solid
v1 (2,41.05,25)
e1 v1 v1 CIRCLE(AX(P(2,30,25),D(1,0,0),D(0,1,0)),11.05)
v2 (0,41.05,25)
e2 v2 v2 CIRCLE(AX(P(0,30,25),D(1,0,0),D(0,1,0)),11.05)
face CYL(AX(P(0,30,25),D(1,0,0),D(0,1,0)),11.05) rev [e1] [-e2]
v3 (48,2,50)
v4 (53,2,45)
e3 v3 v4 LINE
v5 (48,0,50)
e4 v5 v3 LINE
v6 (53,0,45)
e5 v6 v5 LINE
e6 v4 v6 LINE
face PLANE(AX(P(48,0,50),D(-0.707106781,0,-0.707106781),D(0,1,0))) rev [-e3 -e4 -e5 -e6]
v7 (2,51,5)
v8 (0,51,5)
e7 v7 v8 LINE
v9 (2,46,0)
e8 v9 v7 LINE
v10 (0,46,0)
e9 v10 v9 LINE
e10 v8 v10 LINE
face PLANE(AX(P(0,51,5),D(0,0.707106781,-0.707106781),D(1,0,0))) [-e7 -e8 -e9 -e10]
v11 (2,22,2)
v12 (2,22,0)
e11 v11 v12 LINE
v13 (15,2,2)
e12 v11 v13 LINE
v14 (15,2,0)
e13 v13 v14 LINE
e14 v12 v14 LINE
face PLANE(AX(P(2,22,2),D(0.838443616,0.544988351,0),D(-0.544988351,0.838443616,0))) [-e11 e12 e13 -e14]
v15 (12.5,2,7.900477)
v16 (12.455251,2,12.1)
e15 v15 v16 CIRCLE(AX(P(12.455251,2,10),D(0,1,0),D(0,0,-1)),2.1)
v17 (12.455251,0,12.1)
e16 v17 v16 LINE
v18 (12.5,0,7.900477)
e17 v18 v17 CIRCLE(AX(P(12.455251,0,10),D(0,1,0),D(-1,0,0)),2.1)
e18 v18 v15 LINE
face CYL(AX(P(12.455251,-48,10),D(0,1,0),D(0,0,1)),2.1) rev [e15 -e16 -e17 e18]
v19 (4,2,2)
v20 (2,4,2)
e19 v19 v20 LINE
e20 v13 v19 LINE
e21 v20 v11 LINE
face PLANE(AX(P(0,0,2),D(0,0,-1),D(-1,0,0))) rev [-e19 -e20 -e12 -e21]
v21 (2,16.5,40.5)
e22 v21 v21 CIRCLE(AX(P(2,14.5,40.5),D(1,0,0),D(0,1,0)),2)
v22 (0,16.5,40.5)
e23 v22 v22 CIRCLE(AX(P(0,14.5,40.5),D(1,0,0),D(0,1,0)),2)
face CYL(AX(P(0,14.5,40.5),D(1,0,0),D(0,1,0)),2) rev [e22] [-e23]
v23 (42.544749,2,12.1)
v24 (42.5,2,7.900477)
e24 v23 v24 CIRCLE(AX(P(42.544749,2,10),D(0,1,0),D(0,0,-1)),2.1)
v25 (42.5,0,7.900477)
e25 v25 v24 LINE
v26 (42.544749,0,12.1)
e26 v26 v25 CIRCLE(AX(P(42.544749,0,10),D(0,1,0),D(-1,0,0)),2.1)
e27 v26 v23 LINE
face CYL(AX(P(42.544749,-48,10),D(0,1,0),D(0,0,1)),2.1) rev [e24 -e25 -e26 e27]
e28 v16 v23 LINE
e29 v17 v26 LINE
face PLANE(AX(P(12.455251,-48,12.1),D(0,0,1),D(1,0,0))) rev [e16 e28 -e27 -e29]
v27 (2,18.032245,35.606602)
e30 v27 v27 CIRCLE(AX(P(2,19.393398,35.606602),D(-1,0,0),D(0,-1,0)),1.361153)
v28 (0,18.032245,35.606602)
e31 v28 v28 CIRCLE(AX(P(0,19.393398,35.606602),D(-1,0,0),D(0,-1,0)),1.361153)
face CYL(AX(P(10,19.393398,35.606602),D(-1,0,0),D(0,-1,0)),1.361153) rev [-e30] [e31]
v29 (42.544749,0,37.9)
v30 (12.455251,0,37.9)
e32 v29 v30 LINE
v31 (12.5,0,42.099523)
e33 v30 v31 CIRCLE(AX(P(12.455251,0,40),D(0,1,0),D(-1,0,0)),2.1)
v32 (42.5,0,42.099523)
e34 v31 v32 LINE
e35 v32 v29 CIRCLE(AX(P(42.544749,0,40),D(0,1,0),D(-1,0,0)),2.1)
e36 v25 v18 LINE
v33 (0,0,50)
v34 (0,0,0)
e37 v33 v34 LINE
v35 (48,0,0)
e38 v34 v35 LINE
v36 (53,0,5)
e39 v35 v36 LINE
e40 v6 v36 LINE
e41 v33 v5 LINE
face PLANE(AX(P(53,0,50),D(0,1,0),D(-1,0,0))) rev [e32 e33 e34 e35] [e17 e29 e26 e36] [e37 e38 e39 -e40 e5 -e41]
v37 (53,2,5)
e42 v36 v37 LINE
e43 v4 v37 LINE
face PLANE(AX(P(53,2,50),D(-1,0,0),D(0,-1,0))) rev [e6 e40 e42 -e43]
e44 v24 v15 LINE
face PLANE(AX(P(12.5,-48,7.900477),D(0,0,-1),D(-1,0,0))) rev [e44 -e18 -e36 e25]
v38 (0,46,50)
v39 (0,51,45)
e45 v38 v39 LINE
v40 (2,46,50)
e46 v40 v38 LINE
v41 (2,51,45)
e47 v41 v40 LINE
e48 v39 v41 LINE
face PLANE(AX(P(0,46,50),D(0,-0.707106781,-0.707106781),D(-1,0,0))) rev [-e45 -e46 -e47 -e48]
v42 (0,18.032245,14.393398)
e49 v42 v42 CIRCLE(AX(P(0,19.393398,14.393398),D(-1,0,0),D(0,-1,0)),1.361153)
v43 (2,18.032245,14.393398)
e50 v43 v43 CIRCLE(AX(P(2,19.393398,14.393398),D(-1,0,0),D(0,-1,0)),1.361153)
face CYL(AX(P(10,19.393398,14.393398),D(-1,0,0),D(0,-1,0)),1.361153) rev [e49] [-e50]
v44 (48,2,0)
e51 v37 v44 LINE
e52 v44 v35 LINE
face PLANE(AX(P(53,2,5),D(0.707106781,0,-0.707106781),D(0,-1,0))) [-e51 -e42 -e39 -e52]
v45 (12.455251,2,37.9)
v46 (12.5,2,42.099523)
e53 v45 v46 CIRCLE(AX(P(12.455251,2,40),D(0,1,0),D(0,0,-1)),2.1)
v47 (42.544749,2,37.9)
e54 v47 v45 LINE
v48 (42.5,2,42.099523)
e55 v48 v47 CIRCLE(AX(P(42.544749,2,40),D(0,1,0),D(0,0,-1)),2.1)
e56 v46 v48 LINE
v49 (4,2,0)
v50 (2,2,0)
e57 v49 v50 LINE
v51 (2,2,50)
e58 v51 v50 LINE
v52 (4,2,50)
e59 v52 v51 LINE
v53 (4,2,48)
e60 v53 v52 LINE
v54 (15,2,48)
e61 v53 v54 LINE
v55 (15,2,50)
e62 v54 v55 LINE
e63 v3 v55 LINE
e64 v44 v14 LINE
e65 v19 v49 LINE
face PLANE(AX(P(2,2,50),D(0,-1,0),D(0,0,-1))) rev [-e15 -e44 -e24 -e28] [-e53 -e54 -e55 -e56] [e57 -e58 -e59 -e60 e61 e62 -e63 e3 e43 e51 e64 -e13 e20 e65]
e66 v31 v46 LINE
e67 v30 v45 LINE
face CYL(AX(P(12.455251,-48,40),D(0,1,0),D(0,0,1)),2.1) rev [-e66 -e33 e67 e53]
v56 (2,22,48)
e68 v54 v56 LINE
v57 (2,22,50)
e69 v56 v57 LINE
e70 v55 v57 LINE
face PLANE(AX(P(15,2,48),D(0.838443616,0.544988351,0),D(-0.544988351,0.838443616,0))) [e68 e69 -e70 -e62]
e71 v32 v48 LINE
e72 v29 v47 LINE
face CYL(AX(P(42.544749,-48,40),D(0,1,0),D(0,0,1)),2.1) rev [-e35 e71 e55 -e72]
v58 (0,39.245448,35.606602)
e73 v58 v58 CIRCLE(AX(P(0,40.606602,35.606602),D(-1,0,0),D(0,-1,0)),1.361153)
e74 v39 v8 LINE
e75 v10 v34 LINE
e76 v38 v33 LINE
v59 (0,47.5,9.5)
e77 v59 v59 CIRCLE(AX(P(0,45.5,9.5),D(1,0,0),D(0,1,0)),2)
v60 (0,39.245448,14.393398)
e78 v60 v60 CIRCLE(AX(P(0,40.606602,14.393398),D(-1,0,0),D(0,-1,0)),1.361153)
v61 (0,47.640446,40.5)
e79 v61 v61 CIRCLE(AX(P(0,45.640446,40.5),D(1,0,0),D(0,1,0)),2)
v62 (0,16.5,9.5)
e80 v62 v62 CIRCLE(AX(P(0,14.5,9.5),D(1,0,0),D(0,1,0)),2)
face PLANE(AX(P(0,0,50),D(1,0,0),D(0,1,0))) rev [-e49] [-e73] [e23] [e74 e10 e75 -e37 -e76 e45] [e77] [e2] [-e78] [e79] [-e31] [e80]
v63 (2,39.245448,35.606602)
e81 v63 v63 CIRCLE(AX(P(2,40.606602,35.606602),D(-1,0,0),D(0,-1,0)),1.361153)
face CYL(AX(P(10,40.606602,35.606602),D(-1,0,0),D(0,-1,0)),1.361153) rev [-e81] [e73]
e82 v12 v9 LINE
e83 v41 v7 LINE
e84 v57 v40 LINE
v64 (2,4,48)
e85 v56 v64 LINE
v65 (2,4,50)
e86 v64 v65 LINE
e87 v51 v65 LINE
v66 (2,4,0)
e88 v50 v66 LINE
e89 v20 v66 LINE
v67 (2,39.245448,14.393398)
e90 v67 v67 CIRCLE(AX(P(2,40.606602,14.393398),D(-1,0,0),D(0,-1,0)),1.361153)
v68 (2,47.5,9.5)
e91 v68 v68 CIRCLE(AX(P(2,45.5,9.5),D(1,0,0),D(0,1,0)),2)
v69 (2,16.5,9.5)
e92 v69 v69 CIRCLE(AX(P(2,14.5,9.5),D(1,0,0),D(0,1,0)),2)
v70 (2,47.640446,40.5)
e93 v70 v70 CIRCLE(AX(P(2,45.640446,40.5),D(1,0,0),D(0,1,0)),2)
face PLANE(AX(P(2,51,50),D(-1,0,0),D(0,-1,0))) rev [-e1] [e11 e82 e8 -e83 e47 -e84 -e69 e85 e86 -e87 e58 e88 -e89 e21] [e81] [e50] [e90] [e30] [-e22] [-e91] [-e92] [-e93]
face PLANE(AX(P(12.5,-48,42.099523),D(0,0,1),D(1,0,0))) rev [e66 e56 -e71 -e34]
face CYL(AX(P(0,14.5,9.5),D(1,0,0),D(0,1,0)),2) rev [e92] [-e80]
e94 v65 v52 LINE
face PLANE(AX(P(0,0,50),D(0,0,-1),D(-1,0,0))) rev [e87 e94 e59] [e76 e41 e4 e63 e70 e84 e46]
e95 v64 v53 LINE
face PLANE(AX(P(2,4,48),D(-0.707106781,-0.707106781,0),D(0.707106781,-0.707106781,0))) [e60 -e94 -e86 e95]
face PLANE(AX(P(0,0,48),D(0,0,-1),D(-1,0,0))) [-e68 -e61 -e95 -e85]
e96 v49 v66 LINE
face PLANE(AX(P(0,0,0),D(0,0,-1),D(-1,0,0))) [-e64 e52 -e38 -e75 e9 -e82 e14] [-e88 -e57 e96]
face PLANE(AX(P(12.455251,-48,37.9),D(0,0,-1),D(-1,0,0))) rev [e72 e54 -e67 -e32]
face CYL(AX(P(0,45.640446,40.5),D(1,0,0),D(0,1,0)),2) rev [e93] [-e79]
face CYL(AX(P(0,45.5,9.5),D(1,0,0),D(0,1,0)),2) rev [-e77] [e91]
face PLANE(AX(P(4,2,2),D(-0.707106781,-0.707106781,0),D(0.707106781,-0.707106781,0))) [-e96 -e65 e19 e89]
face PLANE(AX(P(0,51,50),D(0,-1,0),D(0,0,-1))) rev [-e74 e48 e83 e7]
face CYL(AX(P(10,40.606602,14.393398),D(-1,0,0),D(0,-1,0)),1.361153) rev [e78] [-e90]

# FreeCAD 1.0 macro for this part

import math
import FreeCAD as App
import Part
import Sketcher

V = App.Vector
Q = App.Units.Quantity


def edges_at(feature, points):
    """Names of the edges that pass closest to the given points."""
    edges = feature.Shape.Edges
    near = lambda p: min(range(len(edges)), key=lambda i: edges[i].distToShape(Part.Vertex(*p))[0])
    return sorted({f"Edge{near(p) + 1}" for p in points})


def add_polygon(sketch, points):
    """Adds a closed chain of lines whose ends are joined by coincident constraints."""
    first, n = sketch.GeometryCount, len(points)
    for a, b in zip(points, points[1:] + points[:1]):
        sketch.addGeometry(Part.LineSegment(App.Vector(*a, 0), App.Vector(*b, 0)), False)
    for i in range(n):
        sketch.addConstraint(Sketcher.Constraint("Coincident", first + i, 2, first + (i + 1) % n, 1))

doc = App.newDocument("Part")
body = doc.addObject("PartDesign::Body", "Body")

# Sketch on XY plane
sketch1 = body.newObject("Sketcher::SketchObject", "Sketch")
sketch1.AttachmentSupport = (doc.getObject("XY_Plane"), [""])
sketch1.MapMode = "FlatFace"
add_polygon(sketch1, [(0, 51), (0, 0), (53, 0), (53, 2), (2, 2), (2, 51)])  # lines 0-5
sketch1.addConstraint([
    Sketcher.Constraint("Vertical", 0),
    Sketcher.Constraint("Horizontal", 1),
    Sketcher.Constraint("Vertical", 2),
    Sketcher.Constraint("Horizontal", 3),
    Sketcher.Constraint("Vertical", 4),
    Sketcher.Constraint("Horizontal", 5),
    Sketcher.Constraint("Coincident", 0, 2, -1, 1),
    Sketcher.Constraint("Equal", 3, 0),
    Sketcher.Constraint("Equal", 5, 2),
    Sketcher.Constraint("DistanceX", 1, 1, 1, 2, Q("53 mm")),
    Sketcher.Constraint("DistanceX", 3, 2, 3, 1, Q("51 mm")),
])
pad1 = body.newObject("PartDesign::Pad", "Pad")
pad1.Profile = sketch1
pad1.Length = 50

# Sketch on YZ plane
sketch2 = body.newObject("Sketcher::SketchObject", "Sketch001")
sketch2.AttachmentSupport = (doc.getObject("YZ_Plane"), [""])
sketch2.MapMode = "FlatFace"
sketch2.AttachmentOffset = App.Placement(V(0, 0, 2), App.Rotation())
sketch2.addGeometry([
    Part.Circle(V(30, 25, 0), V(0, 0, 1), 11.05),  # 0
    Part.Circle(V(45.640446, 40.5, 0), V(0, 0, 1), 2),  # 1
    Part.Circle(V(45.5, 9.5, 0), V(0, 0, 1), 2),  # 2
    Part.Circle(V(14.5, 40.5, 0), V(0, 0, 1), 2),  # 3
    Part.Circle(V(14.5, 9.5, 0), V(0, 0, 1), 2),  # 4
], False)
sketch2.addConstraint([
    Sketcher.Constraint("Equal", 1, 2),
    Sketcher.Constraint("Equal", 2, 3),
    Sketcher.Constraint("Equal", 3, 4),
    Sketcher.Constraint("Horizontal", 1, 3, 3, 3),
    Sketcher.Constraint("Horizontal", 2, 3, 4, 3),
    Sketcher.Constraint("Vertical", 3, 3, 4, 3),
    Sketcher.Constraint("Diameter", 1, Q("4 mm")),
    Sketcher.Constraint("Diameter", 0, Q("22.1 mm")),
    Sketcher.Constraint("DistanceX", -1, 1, 0, 3, Q("30 mm")),
    Sketcher.Constraint("DistanceY", -1, 1, 0, 3, Q("25 mm")),
    Sketcher.Constraint("DistanceY", 2, 3, 1, 3, Q("31 mm")),
    Sketcher.Constraint("DistanceX", 3, 3, 2, 3, Q("31 mm")),
    Sketcher.Constraint("DistanceY", -1, 1, 1, 3, Q("40.5 mm")),
    Sketcher.Constraint("DistanceX", -1, 1, 2, 3, Q("45.5 mm")),
    Sketcher.Constraint("DistanceX", -1, 1, 1, 3, Q("45.640446 mm")),
])
pocket1 = body.newObject("PartDesign::Pocket", "Pocket")
pocket1.Profile = sketch2
pocket1.Type = "ThroughAll"

# Sketch on XZ plane
sketch3 = body.newObject("Sketcher::SketchObject", "Sketch002")
sketch3.AttachmentSupport = (doc.getObject("XZ_Plane"), [""])
sketch3.MapMode = "FlatFace"
sketch3.AttachmentOffset = App.Placement(V(0, 0, -2), App.Rotation())
sketch3.addGeometry([
    Part.LineSegment(V(12.455251, 12.1, 0), V(42.544749, 12.1, 0)),  # 0
    Part.ArcOfCircle(Part.Circle(V(42.544749, 10, 0), V(0, 0, 1), 2.1), math.radians(-91.221011), math.radians(90)),  # 1
    Part.LineSegment(V(42.5, 7.900477, 0), V(12.5, 7.900477, 0)),  # 2
    Part.ArcOfCircle(Part.Circle(V(12.455251, 10, 0), V(0, 0, 1), 2.1), math.radians(90), math.radians(271.221011)),  # 3
    Part.LineSegment(V(12.5, 42.099523, 0), V(42.5, 42.099523, 0)),  # 4
    Part.ArcOfCircle(Part.Circle(V(42.544749, 40, 0), V(0, 0, 1), 2.1), math.radians(-90), math.radians(91.221011)),  # 5
    Part.LineSegment(V(42.544749, 37.9, 0), V(12.455251, 37.9, 0)),  # 6
    Part.ArcOfCircle(Part.Circle(V(12.455251, 40, 0), V(0, 0, 1), 2.1), math.radians(88.778989), math.radians(270)),  # 7
], False)
sketch3.addConstraint([
    Sketcher.Constraint("Tangent", 0, 2, 1, 2),
    Sketcher.Constraint("Coincident", 1, 1, 2, 1),
    Sketcher.Constraint("Coincident", 2, 2, 3, 2),
    Sketcher.Constraint("Tangent", 3, 1, 0, 1),
    Sketcher.Constraint("Coincident", 4, 2, 5, 2),
    Sketcher.Constraint("Tangent", 5, 1, 6, 1),
    Sketcher.Constraint("Tangent", 6, 2, 7, 2),
    Sketcher.Constraint("Coincident", 7, 1, 4, 1),
    Sketcher.Constraint("Horizontal", 0),
    Sketcher.Constraint("Horizontal", 2),
    Sketcher.Constraint("Horizontal", 4),
    Sketcher.Constraint("Horizontal", 6),
    Sketcher.Constraint("Equal", 1, 3),
    Sketcher.Constraint("Equal", 3, 5),
    Sketcher.Constraint("Equal", 5, 7),
    Sketcher.Constraint("Vertical", 1, 3, 5, 3),
    Sketcher.Constraint("Vertical", 3, 3, 7, 3),
    Sketcher.Constraint("Vertical", 1, 1, 4, 2),
    Sketcher.Constraint("Radius", 1, Q("2.1 mm")),
    Sketcher.Constraint("DistanceX", 2, 2, 2, 1, Q("30 mm")),
    Sketcher.Constraint("DistanceY", -1, 1, 1, 3, Q("10 mm")),
    Sketcher.Constraint("DistanceY", -1, 1, 5, 3, Q("40 mm")),
    Sketcher.Constraint("DistanceX", -1, 1, 1, 1, Q("42.5 mm")),
    Sketcher.Constraint("DistanceX", 0, 1, 0, 2, Q("30.089498 mm")),
])
pocket2 = body.newObject("PartDesign::Pocket", "Pocket001")
pocket2.Profile = sketch3
pocket2.Length = 50
pocket2.Reversed = True

# Sketch on XY plane
sketch4 = body.newObject("Sketcher::SketchObject", "Sketch003")
sketch4.AttachmentSupport = (doc.getObject("XY_Plane"), [""])
sketch4.MapMode = "FlatFace"
sketch4.AttachmentOffset = App.Placement(V(0, 0, 50), App.Rotation())
add_polygon(sketch4, [(2, 22), (2, 4), (4, 2), (15, 2)])  # lines 0-3
sketch4.addConstraint([
    Sketcher.Constraint("Vertical", 0),
    Sketcher.Constraint("Horizontal", 2),
    Sketcher.Constraint("DistanceX", 2, 1, 2, 2, Q("11 mm")),
    Sketcher.Constraint("DistanceY", 0, 2, 0, 1, Q("18 mm")),
    Sketcher.Constraint("Angle", 1, Q("-45 deg")),
    Sketcher.Constraint("DistanceX", -1, 1, 0, 2, Q("2 mm")),
    Sketcher.Constraint("DistanceY", -1, 1, 0, 2, Q("4 mm")),
    Sketcher.Constraint("DistanceX", -1, 1, 1, 2, Q("4 mm")),
])
pad2 = body.newObject("PartDesign::Pad", "Pad001")
pad2.Profile = sketch4
pad2.Length = 2
pad2.Reversed = True

# Sketch on XY plane
sketch5 = body.newObject("Sketcher::SketchObject", "Sketch004")
sketch5.AttachmentSupport = (doc.getObject("XY_Plane"), [""])
sketch5.MapMode = "FlatFace"
add_polygon(sketch5, [(4, 2), (2, 4), (2, 22), (15, 2)])  # lines 0-3
sketch5.addConstraint([
    Sketcher.Constraint("Vertical", 1),
    Sketcher.Constraint("Horizontal", 3),
    Sketcher.Constraint("DistanceX", 3, 2, 3, 1, Q("11 mm")),
    Sketcher.Constraint("DistanceY", 1, 1, 1, 2, Q("18 mm")),
    Sketcher.Constraint("Angle", 0, Q("135 deg")),
    Sketcher.Constraint("DistanceX", -1, 1, 0, 2, Q("2 mm")),
    Sketcher.Constraint("DistanceY", -1, 1, 0, 2, Q("4 mm")),
    Sketcher.Constraint("DistanceX", -1, 1, 2, 2, Q("15 mm")),
])
pad3 = body.newObject("PartDesign::Pad", "Pad002")
pad3.Profile = sketch5
pad3.Length = 2
doc.recompute()

chamfer = body.newObject("PartDesign::Chamfer", "Chamfer")
chamfer.Base = (pad3, edges_at(pad3, [
    (1, 51, 50),
    (1, 51, 0),
    (53, 1, 50),
    (53, 1, 0),
]))
chamfer.Size = 5

# Sketch on YZ plane
sketch6 = body.newObject("Sketcher::SketchObject", "Sketch005")
sketch6.AttachmentSupport = (doc.getObject("YZ_Plane"), [""])
sketch6.MapMode = "FlatFace"
sketch6.addGeometry([
    Part.Circle(V(19.393398, 35.606602, 0), V(0, 0, 1), 1.361153),
    Part.Circle(V(19.393398, 14.393398, 0), V(0, 0, 1), 1.361153),
    Part.Circle(V(40.606602, 14.393398, 0), V(0, 0, 1), 1.361153),
    Part.Circle(V(40.606602, 35.606602, 0), V(0, 0, 1), 1.361153),
], False)
sketch6.addConstraint([
    Sketcher.Constraint("Equal", 0, 1),
    Sketcher.Constraint("Equal", 1, 2),
    Sketcher.Constraint("Equal", 2, 3),
    Sketcher.Constraint("Horizontal", 1, 3, 2, 3),
    Sketcher.Constraint("Horizontal", 0, 3, 3, 3),
    Sketcher.Constraint("Vertical", 0, 3, 1, 3),
    Sketcher.Constraint("Vertical", 2, 3, 3, 3),
    Sketcher.Constraint("Diameter", 0, Q("2.722307 mm")),
    Sketcher.Constraint("DistanceX", -1, 1, 0, 3, Q("19.393398 mm")),
    Sketcher.Constraint("DistanceY", -1, 1, 0, 3, Q("35.606602 mm")),
    Sketcher.Constraint("DistanceY", -1, 1, 1, 3, Q("14.393398 mm")),
    Sketcher.Constraint("DistanceX", -1, 1, 2, 3, Q("40.606602 mm")),
])
pocket3 = body.newObject("PartDesign::Pocket", "Pocket002")
pocket3.Profile = sketch6
pocket3.Length = 10
pocket3.Reversed = True

doc.recompute()
